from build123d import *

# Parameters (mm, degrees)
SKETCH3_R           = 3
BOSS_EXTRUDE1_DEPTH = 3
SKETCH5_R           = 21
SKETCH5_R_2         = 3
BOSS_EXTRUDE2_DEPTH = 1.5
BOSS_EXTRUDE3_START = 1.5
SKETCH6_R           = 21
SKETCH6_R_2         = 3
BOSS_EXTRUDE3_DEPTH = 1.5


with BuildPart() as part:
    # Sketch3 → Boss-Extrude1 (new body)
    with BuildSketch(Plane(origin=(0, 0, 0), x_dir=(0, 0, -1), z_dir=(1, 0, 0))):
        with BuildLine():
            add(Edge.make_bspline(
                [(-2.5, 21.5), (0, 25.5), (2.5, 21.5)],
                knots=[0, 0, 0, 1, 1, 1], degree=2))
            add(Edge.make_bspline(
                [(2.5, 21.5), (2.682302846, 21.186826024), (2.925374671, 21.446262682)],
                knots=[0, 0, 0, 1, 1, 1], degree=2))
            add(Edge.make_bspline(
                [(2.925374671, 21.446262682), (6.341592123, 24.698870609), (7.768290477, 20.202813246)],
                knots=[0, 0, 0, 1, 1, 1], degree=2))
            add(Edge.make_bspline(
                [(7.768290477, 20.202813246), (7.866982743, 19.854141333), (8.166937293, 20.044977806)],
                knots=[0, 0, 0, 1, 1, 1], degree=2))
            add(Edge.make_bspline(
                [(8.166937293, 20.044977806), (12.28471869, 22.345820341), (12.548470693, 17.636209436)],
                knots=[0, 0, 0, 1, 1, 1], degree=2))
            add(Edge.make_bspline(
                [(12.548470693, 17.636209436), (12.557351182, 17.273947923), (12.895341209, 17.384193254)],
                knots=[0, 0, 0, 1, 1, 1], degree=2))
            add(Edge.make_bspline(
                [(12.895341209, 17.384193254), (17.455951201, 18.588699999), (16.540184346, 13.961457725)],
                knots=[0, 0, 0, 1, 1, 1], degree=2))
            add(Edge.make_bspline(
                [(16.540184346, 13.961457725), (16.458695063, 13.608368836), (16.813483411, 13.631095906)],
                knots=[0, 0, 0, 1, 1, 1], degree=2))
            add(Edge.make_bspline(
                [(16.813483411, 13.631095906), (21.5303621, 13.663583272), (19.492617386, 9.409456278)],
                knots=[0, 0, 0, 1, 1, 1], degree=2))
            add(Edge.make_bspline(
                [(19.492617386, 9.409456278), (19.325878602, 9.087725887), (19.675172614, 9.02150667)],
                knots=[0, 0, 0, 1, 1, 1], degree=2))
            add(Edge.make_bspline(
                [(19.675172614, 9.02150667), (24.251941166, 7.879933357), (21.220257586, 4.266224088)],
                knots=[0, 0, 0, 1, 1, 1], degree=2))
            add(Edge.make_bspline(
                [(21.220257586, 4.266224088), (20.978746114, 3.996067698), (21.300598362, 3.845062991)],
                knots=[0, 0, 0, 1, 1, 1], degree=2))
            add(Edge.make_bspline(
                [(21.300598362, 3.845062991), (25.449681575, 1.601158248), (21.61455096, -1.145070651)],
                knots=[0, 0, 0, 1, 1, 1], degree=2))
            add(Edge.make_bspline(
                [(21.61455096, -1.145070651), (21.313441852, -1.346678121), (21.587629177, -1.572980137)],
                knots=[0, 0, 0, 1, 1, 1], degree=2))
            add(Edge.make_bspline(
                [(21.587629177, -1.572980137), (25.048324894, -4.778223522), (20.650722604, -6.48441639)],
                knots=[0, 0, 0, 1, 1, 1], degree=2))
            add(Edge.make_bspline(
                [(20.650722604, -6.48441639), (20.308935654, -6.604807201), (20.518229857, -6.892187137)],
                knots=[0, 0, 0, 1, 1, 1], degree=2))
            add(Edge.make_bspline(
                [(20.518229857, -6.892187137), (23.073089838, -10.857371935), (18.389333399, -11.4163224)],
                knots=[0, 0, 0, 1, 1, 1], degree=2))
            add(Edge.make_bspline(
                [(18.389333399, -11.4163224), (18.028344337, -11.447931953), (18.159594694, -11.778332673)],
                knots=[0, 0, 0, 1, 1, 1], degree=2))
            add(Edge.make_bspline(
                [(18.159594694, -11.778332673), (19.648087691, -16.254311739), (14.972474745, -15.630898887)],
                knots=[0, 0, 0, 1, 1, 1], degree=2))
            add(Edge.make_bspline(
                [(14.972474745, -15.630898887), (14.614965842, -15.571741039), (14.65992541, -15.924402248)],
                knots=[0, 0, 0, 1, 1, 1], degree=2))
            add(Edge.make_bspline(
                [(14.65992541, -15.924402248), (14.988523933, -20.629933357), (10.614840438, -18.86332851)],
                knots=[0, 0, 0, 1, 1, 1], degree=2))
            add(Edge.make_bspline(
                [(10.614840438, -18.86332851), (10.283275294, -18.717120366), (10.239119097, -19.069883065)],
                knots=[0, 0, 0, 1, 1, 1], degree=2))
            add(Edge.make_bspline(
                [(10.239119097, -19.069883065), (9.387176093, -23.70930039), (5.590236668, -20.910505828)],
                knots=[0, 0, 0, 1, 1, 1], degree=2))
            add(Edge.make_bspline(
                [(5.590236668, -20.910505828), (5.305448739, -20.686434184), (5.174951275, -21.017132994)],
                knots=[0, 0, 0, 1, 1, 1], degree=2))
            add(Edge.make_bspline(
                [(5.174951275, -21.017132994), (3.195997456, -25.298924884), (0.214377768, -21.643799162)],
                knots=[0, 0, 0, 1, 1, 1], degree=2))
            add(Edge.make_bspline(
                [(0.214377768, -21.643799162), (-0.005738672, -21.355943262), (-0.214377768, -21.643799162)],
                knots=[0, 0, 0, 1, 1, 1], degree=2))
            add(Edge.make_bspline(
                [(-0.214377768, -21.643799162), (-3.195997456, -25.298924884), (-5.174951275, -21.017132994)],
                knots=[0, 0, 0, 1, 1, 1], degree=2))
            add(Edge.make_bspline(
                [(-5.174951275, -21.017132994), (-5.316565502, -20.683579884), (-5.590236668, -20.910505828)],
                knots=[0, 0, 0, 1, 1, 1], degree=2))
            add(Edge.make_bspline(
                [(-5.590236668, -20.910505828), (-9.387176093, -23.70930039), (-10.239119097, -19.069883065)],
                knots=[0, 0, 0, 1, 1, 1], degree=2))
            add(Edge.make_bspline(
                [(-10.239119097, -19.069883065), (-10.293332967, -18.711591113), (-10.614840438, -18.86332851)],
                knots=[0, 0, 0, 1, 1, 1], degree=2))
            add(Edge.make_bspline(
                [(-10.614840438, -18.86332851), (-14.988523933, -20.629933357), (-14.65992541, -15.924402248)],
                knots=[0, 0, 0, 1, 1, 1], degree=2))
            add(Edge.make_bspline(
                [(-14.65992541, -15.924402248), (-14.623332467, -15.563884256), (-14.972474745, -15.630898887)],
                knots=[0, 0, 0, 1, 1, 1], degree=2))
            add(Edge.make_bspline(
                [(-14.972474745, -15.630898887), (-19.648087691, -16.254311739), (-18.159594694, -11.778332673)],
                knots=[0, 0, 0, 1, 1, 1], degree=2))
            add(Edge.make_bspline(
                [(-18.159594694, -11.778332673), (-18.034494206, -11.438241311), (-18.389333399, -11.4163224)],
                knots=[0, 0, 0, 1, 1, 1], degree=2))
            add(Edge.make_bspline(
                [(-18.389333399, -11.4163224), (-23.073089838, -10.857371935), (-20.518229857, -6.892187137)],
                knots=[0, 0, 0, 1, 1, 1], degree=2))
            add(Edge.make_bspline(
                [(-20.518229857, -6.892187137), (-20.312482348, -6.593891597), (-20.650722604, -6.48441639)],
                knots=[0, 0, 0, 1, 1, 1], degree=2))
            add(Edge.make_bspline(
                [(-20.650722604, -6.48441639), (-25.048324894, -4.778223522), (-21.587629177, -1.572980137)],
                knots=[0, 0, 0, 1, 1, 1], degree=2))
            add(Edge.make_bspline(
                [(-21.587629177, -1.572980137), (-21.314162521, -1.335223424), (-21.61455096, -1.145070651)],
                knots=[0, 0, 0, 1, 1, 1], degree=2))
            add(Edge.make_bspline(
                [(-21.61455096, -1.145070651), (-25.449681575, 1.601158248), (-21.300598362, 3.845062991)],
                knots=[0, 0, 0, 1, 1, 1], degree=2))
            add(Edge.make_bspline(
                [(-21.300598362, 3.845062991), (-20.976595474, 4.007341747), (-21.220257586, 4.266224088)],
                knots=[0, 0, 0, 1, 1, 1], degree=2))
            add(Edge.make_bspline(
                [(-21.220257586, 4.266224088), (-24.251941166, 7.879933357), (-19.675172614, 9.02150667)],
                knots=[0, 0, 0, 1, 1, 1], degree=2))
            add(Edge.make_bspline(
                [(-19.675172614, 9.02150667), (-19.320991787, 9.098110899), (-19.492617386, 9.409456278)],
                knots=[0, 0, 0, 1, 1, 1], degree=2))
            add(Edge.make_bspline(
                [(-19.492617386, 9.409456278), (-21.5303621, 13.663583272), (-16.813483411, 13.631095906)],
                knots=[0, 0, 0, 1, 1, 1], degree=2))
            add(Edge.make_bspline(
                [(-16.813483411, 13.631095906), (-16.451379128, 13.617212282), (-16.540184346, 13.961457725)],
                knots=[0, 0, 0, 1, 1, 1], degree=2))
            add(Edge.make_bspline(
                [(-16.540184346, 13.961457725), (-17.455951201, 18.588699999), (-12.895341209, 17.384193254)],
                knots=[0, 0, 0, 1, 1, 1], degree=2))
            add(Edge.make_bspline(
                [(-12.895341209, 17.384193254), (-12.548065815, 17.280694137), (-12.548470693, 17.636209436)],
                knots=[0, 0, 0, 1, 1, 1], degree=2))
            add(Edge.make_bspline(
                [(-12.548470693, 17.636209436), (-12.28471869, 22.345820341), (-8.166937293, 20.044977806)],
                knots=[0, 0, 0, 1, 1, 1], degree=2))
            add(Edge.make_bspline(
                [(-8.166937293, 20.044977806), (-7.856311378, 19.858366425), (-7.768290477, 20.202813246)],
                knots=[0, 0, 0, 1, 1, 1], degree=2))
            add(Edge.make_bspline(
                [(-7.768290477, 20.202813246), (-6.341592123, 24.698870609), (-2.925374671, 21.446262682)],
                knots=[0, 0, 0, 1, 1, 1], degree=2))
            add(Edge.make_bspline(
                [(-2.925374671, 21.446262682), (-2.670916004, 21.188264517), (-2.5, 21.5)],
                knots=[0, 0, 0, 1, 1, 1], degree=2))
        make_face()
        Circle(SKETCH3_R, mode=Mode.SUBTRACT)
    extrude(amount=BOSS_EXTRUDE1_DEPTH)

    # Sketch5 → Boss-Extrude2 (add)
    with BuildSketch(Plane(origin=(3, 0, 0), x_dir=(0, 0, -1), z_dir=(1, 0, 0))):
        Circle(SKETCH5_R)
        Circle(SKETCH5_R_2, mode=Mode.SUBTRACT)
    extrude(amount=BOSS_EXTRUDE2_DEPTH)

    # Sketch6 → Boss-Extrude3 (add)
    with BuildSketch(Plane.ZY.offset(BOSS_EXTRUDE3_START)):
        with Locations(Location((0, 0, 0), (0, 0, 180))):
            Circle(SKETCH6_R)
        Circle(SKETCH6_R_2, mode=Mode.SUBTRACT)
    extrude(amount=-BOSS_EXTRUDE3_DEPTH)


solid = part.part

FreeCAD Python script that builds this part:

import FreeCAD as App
import Part
import Sketcher

doc = App.newDocument("Part")
body = doc.addObject("PartDesign::Body", "Body")

sketch1 = body.newObject("Sketcher::SketchObject", "Sketch")
sketch1.AttachmentSupport = (doc.getObject("YZ_Plane"), [""])
sketch1.MapMode = "FlatFace"
sketch1.addGeometry([
    Part.BSplineCurve([App.Vector(21.5, 2.5, 0), App.Vector(25.5, 0, 0), App.Vector(21.5, -2.5, 0)], [3, 3], [0, 1], False, 2, [1, 1, 1], False),
    Part.BSplineCurve([App.Vector(21.446263, 2.925375, 0), App.Vector(21.188265, 2.670916, 0), App.Vector(21.5, 2.5, 0)], [3, 3], [0, 1], False, 2, [1, 1, 1], False),
    Part.BSplineCurve([App.Vector(20.202813, 7.76829, 0), App.Vector(24.698871, 6.341592, 0), App.Vector(21.446263, 2.925375, 0)], [3, 3], [0, 1], False, 2, [1, 1, 1], False),
    Part.BSplineCurve([App.Vector(20.044978, 8.166937, 0), App.Vector(19.858366, 7.856311, 0), App.Vector(20.202813, 7.76829, 0)], [3, 3], [0, 1], False, 2, [1, 1, 1], False),
    Part.BSplineCurve([App.Vector(17.636209, 12.548471, 0), App.Vector(22.34582, 12.284719, 0), App.Vector(20.044978, 8.166937, 0)], [3, 3], [0, 1], False, 2, [1, 1, 1], False),
    Part.BSplineCurve([App.Vector(17.384193, 12.895341, 0), App.Vector(17.280694, 12.548066, 0), App.Vector(17.636209, 12.548471, 0)], [3, 3], [0, 1], False, 2, [1, 1, 1], False),
    Part.BSplineCurve([App.Vector(13.961458, 16.540184, 0), App.Vector(18.5887, 17.455951, 0), App.Vector(17.384193, 12.895341, 0)], [3, 3], [0, 1], False, 2, [1, 1, 1], False),
    Part.BSplineCurve([App.Vector(13.631096, 16.813483, 0), App.Vector(13.617212, 16.451379, 0), App.Vector(13.961458, 16.540184, 0)], [3, 3], [0, 1], False, 2, [1, 1, 1], False),
    Part.BSplineCurve([App.Vector(9.409456, 19.492617, 0), App.Vector(13.663583, 21.530362, 0), App.Vector(13.631096, 16.813483, 0)], [3, 3], [0, 1], False, 2, [1, 1, 1], False),
    Part.BSplineCurve([App.Vector(9.021507, 19.675173, 0), App.Vector(9.098111, 19.320992, 0), App.Vector(9.409456, 19.492617, 0)], [3, 3], [0, 1], False, 2, [1, 1, 1], False),
    Part.BSplineCurve([App.Vector(4.266224, 21.220258, 0), App.Vector(7.879933, 24.251941, 0), App.Vector(9.021507, 19.675173, 0)], [3, 3], [0, 1], False, 2, [1, 1, 1], False),
    Part.BSplineCurve([App.Vector(3.845063, 21.300598, 0), App.Vector(4.007342, 20.976595, 0), App.Vector(4.266224, 21.220258, 0)], [3, 3], [0, 1], False, 2, [1, 1, 1], False),
    Part.BSplineCurve([App.Vector(-1.145071, 21.614551, 0), App.Vector(1.601158, 25.449682, 0), App.Vector(3.845063, 21.300598, 0)], [3, 3], [0, 1], False, 2, [1, 1, 1], False),
    Part.BSplineCurve([App.Vector(-1.57298, 21.587629, 0), App.Vector(-1.335223, 21.314163, 0), App.Vector(-1.145071, 21.614551, 0)], [3, 3], [0, 1], False, 2, [1, 1, 1], False),
    Part.BSplineCurve([App.Vector(-6.484416, 20.650723, 0), App.Vector(-4.778224, 25.048325, 0), App.Vector(-1.57298, 21.587629, 0)], [3, 3], [0, 1], False, 2, [1, 1, 1], False),
    Part.BSplineCurve([App.Vector(-6.892187, 20.51823, 0), App.Vector(-6.593892, 20.312482, 0), App.Vector(-6.484416, 20.650723, 0)], [3, 3], [0, 1], False, 2, [1, 1, 1], False),
    Part.BSplineCurve([App.Vector(-11.416322, 18.389333, 0), App.Vector(-10.857372, 23.07309, 0), App.Vector(-6.892187, 20.51823, 0)], [3, 3], [0, 1], False, 2, [1, 1, 1], False),
    Part.BSplineCurve([App.Vector(-11.778333, 18.159595, 0), App.Vector(-11.438241, 18.034494, 0), App.Vector(-11.416322, 18.389333, 0)], [3, 3], [0, 1], False, 2, [1, 1, 1], False),
    Part.BSplineCurve([App.Vector(-15.630899, 14.972475, 0), App.Vector(-16.254312, 19.648088, 0), App.Vector(-11.778333, 18.159595, 0)], [3, 3], [0, 1], False, 2, [1, 1, 1], False),
    Part.BSplineCurve([App.Vector(-15.924402, 14.659925, 0), App.Vector(-15.563884, 14.623332, 0), App.Vector(-15.630899, 14.972475, 0)], [3, 3], [0, 1], False, 2, [1, 1, 1], False),
    Part.BSplineCurve([App.Vector(-18.863329, 10.61484, 0), App.Vector(-20.629933, 14.988524, 0), App.Vector(-15.924402, 14.659925, 0)], [3, 3], [0, 1], False, 2, [1, 1, 1], False),
    Part.BSplineCurve([App.Vector(-19.069883, 10.239119, 0), App.Vector(-18.711591, 10.293333, 0), App.Vector(-18.863329, 10.61484, 0)], [3, 3], [0, 1], False, 2, [1, 1, 1], False),
    Part.BSplineCurve([App.Vector(-20.910506, 5.590237, 0), App.Vector(-23.7093, 9.387176, 0), App.Vector(-19.069883, 10.239119, 0)], [3, 3], [0, 1], False, 2, [1, 1, 1], False),
    Part.BSplineCurve([App.Vector(-21.017133, 5.174951, 0), App.Vector(-20.68358, 5.316566, 0), App.Vector(-20.910506, 5.590237, 0)], [3, 3], [0, 1], False, 2, [1, 1, 1], False),
    Part.BSplineCurve([App.Vector(-21.643799, 0.214378, 0), App.Vector(-25.298925, 3.195997, 0), App.Vector(-21.017133, 5.174951, 0)], [3, 3], [0, 1], False, 2, [1, 1, 1], False),
    Part.BSplineCurve([App.Vector(-21.643799, -0.214378, 0), App.Vector(-21.355943, 0.005739, 0), App.Vector(-21.643799, 0.214378, 0)], [3, 3], [0, 1], False, 2, [1, 1, 1], False),
    Part.BSplineCurve([App.Vector(-21.017133, -5.174951, 0), App.Vector(-25.298925, -3.195997, 0), App.Vector(-21.643799, -0.214378, 0)], [3, 3], [0, 1], False, 2, [1, 1, 1], False),
    Part.BSplineCurve([App.Vector(-20.910506, -5.590237, 0), App.Vector(-20.686434, -5.305449, 0), App.Vector(-21.017133, -5.174951, 0)], [3, 3], [0, 1], False, 2, [1, 1, 1], False),
    Part.BSplineCurve([App.Vector(-19.069883, -10.239119, 0), App.Vector(-23.7093, -9.387176, 0), App.Vector(-20.910506, -5.590237, 0)], [3, 3], [0, 1], False, 2, [1, 1, 1], False),
    Part.BSplineCurve([App.Vector(-18.863329, -10.61484, 0), App.Vector(-18.71712, -10.283275, 0), App.Vector(-19.069883, -10.239119, 0)], [3, 3], [0, 1], False, 2, [1, 1, 1], False),
    Part.BSplineCurve([App.Vector(-15.924402, -14.659925, 0), App.Vector(-20.629933, -14.988524, 0), App.Vector(-18.863329, -10.61484, 0)], [3, 3], [0, 1], False, 2, [1, 1, 1], False),
    Part.BSplineCurve([App.Vector(-15.630899, -14.972475, 0), App.Vector(-15.571741, -14.614966, 0), App.Vector(-15.924402, -14.659925, 0)], [3, 3], [0, 1], False, 2, [1, 1, 1], False),
    Part.BSplineCurve([App.Vector(-11.778333, -18.159595, 0), App.Vector(-16.254312, -19.648088, 0), App.Vector(-15.630899, -14.972475, 0)], [3, 3], [0, 1], False, 2, [1, 1, 1], False),
    Part.BSplineCurve([App.Vector(-11.416322, -18.389333, 0), App.Vector(-11.447932, -18.028344, 0), App.Vector(-11.778333, -18.159595, 0)], [3, 3], [0, 1], False, 2, [1, 1, 1], False),
    Part.BSplineCurve([App.Vector(-6.892187, -20.51823, 0), App.Vector(-10.857372, -23.07309, 0), App.Vector(-11.416322, -18.389333, 0)], [3, 3], [0, 1], False, 2, [1, 1, 1], False),
    Part.BSplineCurve([App.Vector(-6.484416, -20.650723, 0), App.Vector(-6.604807, -20.308936, 0), App.Vector(-6.892187, -20.51823, 0)], [3, 3], [0, 1], False, 2, [1, 1, 1], False),
    Part.BSplineCurve([App.Vector(-1.57298, -21.587629, 0), App.Vector(-4.778224, -25.048325, 0), App.Vector(-6.484416, -20.650723, 0)], [3, 3], [0, 1], False, 2, [1, 1, 1], False),
    Part.BSplineCurve([App.Vector(-1.145071, -21.614551, 0), App.Vector(-1.346678, -21.313442, 0), App.Vector(-1.57298, -21.587629, 0)], [3, 3], [0, 1], False, 2, [1, 1, 1], False),
    Part.BSplineCurve([App.Vector(3.845063, -21.300598, 0), App.Vector(1.601158, -25.449682, 0), App.Vector(-1.145071, -21.614551, 0)], [3, 3], [0, 1], False, 2, [1, 1, 1], False),
    Part.BSplineCurve([App.Vector(4.266224, -21.220258, 0), App.Vector(3.996068, -20.978746, 0), App.Vector(3.845063, -21.300598, 0)], [3, 3], [0, 1], False, 2, [1, 1, 1], False),
    Part.BSplineCurve([App.Vector(9.021507, -19.675173, 0), App.Vector(7.879933, -24.251941, 0), App.Vector(4.266224, -21.220258, 0)], [3, 3], [0, 1], False, 2, [1, 1, 1], False),
    Part.BSplineCurve([App.Vector(9.409456, -19.492617, 0), App.Vector(9.087726, -19.325879, 0), App.Vector(9.021507, -19.675173, 0)], [3, 3], [0, 1], False, 2, [1, 1, 1], False),
    Part.BSplineCurve([App.Vector(13.631096, -16.813483, 0), App.Vector(13.663583, -21.530362, 0), App.Vector(9.409456, -19.492617, 0)], [3, 3], [0, 1], False, 2, [1, 1, 1], False),
    Part.BSplineCurve([App.Vector(13.961458, -16.540184, 0), App.Vector(13.608369, -16.458695, 0), App.Vector(13.631096, -16.813483, 0)], [3, 3], [0, 1], False, 2, [1, 1, 1], False),
    Part.BSplineCurve([App.Vector(17.384193, -12.895341, 0), App.Vector(18.5887, -17.455951, 0), App.Vector(13.961458, -16.540184, 0)], [3, 3], [0, 1], False, 2, [1, 1, 1], False),
    Part.BSplineCurve([App.Vector(17.636209, -12.548471, 0), App.Vector(17.273948, -12.557351, 0), App.Vector(17.384193, -12.895341, 0)], [3, 3], [0, 1], False, 2, [1, 1, 1], False),
    Part.BSplineCurve([App.Vector(20.044978, -8.166937, 0), App.Vector(22.34582, -12.284719, 0), App.Vector(17.636209, -12.548471, 0)], [3, 3], [0, 1], False, 2, [1, 1, 1], False),
    Part.BSplineCurve([App.Vector(20.202813, -7.76829, 0), App.Vector(19.854141, -7.866983, 0), App.Vector(20.044978, -8.166937, 0)], [3, 3], [0, 1], False, 2, [1, 1, 1], False),
    Part.BSplineCurve([App.Vector(21.446263, -2.925375, 0), App.Vector(24.698871, -6.341592, 0), App.Vector(20.202813, -7.76829, 0)], [3, 3], [0, 1], False, 2, [1, 1, 1], False),
    Part.BSplineCurve([App.Vector(21.5, -2.5, 0), App.Vector(21.186826, -2.682303, 0), App.Vector(21.446263, -2.925375, 0)], [3, 3], [0, 1], False, 2, [1, 1, 1], False),
    Part.Circle(App.Vector(0, 0, 0), App.Vector(0, 0, 1), 3),
], False)
sketch1.addConstraint([
    Sketcher.Constraint("Block", 0),
    Sketcher.Constraint("Block", 1),
    Sketcher.Constraint("Block", 2),
    Sketcher.Constraint("Block", 3),
    Sketcher.Constraint("Block", 4),
    Sketcher.Constraint("Block", 5),
    Sketcher.Constraint("Block", 6),
    Sketcher.Constraint("Block", 7),
    Sketcher.Constraint("Block", 8),
    Sketcher.Constraint("Block", 9),
    Sketcher.Constraint("Block", 10),
    Sketcher.Constraint("Block", 11),
    Sketcher.Constraint("Block", 12),
    Sketcher.Constraint("Block", 13),
    Sketcher.Constraint("Block", 14),
    Sketcher.Constraint("Block", 15),
    Sketcher.Constraint("Block", 16),
    Sketcher.Constraint("Block", 17),
    Sketcher.Constraint("Block", 18),
    Sketcher.Constraint("Block", 19),
    Sketcher.Constraint("Block", 20),
    Sketcher.Constraint("Block", 21),
    Sketcher.Constraint("Block", 22),
    Sketcher.Constraint("Block", 23),
    Sketcher.Constraint("Block", 24),
    Sketcher.Constraint("Block", 25),
    Sketcher.Constraint("Block", 26),
    Sketcher.Constraint("Block", 27),
    Sketcher.Constraint("Block", 28),
    Sketcher.Constraint("Block", 29),
    Sketcher.Constraint("Block", 30),
    Sketcher.Constraint("Block", 31),
    Sketcher.Constraint("Block", 32),
    Sketcher.Constraint("Block", 33),
    Sketcher.Constraint("Block", 34),
    Sketcher.Constraint("Block", 35),
    Sketcher.Constraint("Block", 36),
    Sketcher.Constraint("Block", 37),
    Sketcher.Constraint("Block", 38),
    Sketcher.Constraint("Block", 39),
    Sketcher.Constraint("Block", 40),
    Sketcher.Constraint("Block", 41),
    Sketcher.Constraint("Block", 42),
    Sketcher.Constraint("Block", 43),
    Sketcher.Constraint("Block", 44),
    Sketcher.Constraint("Block", 45),
    Sketcher.Constraint("Block", 46),
    Sketcher.Constraint("Block", 47),
    Sketcher.Constraint("Block", 48),
    Sketcher.Constraint("Block", 49),
    Sketcher.Constraint("Coincident", 50, 3, -1, 1),
    Sketcher.Constraint("Diameter", 50, 6.0),
])
pad1 = body.newObject("PartDesign::Pad", "Pad")
pad1.Profile = sketch1
pad1.Length = 3

sketch2 = body.newObject("Sketcher::SketchObject", "Sketch001")
sketch2.AttachmentSupport = (doc.getObject("YZ_Plane"), [""])
sketch2.MapMode = "FlatFace"
sketch2.AttachmentOffset = App.Placement(App.Vector(0, 0, 3), App.Rotation())
sketch2.addGeometry([
    Part.Circle(App.Vector(0, 0, 0), App.Vector(0, 0, 1), 21),
    Part.Circle(App.Vector(0, 0, 0), App.Vector(0, 0, 1), 3),
], False)
sketch2.addConstraint([
    Sketcher.Constraint("Coincident", 0, 3, -1, 1),
    Sketcher.Constraint("Coincident", 1, 3, -1, 1),
    Sketcher.Constraint("Diameter", 0, 42.0),
    Sketcher.Constraint("Diameter", 1, 6.0),
])
pad2 = body.newObject("PartDesign::Pad", "Pad001")
pad2.Profile = sketch2
pad2.Length = 1.5

sketch3 = body.newObject("Sketcher::SketchObject", "Sketch002")
sketch3.AttachmentSupport = (doc.getObject("YZ_Plane"), [""])
sketch3.MapMode = "FlatFace"
sketch3.AttachmentOffset = App.Placement(App.Vector(0, 0, -1.5), App.Rotation())
sketch3.addGeometry([
    Part.Circle(App.Vector(0, 0, 0), App.Vector(0, 0, 1), 21),
    Part.Circle(App.Vector(0, 0, 0), App.Vector(0, 0, 1), 3),
], False)
sketch3.addConstraint([
    Sketcher.Constraint("Coincident", 0, 3, -1, 1),
    Sketcher.Constraint("Coincident", 1, 3, -1, 1),
    Sketcher.Constraint("Diameter", 0, 42.0),
    Sketcher.Constraint("Diameter", 1, 6.0),
])
pad3 = body.newObject("PartDesign::Pad", "Pad002")
pad3.Profile = sketch3
pad3.Length = 1.5

doc.recompute()
